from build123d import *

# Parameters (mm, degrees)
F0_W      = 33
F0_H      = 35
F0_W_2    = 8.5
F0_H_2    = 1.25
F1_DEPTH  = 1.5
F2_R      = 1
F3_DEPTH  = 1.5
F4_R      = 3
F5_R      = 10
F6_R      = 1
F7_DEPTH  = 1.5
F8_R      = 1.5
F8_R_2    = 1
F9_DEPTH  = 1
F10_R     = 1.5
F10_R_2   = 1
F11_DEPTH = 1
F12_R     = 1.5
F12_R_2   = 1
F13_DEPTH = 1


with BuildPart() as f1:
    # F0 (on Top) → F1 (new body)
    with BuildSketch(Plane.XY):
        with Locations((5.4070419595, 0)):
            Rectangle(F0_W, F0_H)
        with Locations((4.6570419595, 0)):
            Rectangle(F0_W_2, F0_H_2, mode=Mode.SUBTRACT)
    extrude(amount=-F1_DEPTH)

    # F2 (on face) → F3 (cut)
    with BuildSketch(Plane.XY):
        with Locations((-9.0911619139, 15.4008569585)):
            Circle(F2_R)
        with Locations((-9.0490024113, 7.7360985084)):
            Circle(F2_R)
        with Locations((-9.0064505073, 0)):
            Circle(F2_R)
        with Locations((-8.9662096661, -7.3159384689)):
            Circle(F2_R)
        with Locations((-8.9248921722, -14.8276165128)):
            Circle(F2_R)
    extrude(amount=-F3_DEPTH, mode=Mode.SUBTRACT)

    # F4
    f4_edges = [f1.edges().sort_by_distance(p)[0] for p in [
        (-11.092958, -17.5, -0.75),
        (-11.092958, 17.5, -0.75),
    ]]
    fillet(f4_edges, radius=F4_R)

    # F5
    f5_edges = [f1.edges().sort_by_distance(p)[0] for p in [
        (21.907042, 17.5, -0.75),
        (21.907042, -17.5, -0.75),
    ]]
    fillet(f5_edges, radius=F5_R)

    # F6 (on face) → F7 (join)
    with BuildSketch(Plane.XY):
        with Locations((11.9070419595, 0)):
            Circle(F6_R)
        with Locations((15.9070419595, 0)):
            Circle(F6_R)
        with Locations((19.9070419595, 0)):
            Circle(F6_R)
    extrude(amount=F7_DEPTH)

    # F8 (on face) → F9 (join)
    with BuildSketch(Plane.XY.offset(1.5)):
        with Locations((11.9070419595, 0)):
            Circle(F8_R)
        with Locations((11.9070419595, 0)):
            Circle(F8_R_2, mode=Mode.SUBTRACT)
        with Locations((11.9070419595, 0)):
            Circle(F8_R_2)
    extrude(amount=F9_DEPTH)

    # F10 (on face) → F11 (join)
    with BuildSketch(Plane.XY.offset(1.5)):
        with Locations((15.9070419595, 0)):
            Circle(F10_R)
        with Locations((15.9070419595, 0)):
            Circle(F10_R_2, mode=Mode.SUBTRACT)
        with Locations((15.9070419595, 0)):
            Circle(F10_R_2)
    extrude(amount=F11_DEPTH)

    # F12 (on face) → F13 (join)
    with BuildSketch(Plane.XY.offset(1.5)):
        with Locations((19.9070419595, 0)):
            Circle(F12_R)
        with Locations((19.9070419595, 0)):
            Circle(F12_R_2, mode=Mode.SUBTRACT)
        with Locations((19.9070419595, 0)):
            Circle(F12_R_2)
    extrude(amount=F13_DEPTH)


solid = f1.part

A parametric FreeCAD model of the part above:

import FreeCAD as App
import Part
import Sketcher

V = App.Vector
Q = App.Units.Quantity


def edges_at(feature, points):
    """Names of the edges that pass closest to the given points."""
    edges = feature.Shape.Edges
    near = lambda p: min(range(len(edges)), key=lambda i: edges[i].distToShape(Part.Vertex(*p))[0])
    return sorted({f"Edge{near(p) + 1}" for p in points})

doc = App.newDocument("Part")
body = doc.addObject("PartDesign::Body", "Body")

sketch1 = doc.addObject("Sketcher::SketchObject", "Sketch")
body.addObject(sketch1)
sketch1.AttachmentSupport = (doc.XY_Plane, [""])
sketch1.MapMode = "FlatFace"
sketch1.addGeometry([
    Part.LineSegment(V(-11.092958, 17.5, 0), V(-11.092958, -17.5, 0)),
    Part.LineSegment(V(-11.092958, -17.5, 0), V(21.907042, -17.5, 0)),
    Part.LineSegment(V(21.907042, -17.5, 0), V(21.907042, 17.5, 0)),
    Part.LineSegment(V(21.907042, 17.5, 0), V(-11.092958, 17.5, 0)),
    Part.LineSegment(V(8.907042, -0.625, 0), V(0.407042, -0.625, 0)),
    Part.LineSegment(V(0.407042, -0.625, 0), V(0.407042, 0.625, 0)),
    Part.LineSegment(V(0.407042, 0.625, 0), V(8.907042, 0.625, 0)),
    Part.LineSegment(V(8.907042, 0.625, 0), V(8.907042, -0.625, 0)),
], False)
sketch1.addConstraint([
    Sketcher.Constraint("Coincident", 0, 2, 1, 1),
    Sketcher.Constraint("Coincident", 1, 2, 2, 1),
    Sketcher.Constraint("Coincident", 2, 2, 3, 1),
    Sketcher.Constraint("Coincident", 3, 2, 0, 1),
    Sketcher.Constraint("Coincident", 4, 2, 5, 1),
    Sketcher.Constraint("Coincident", 5, 2, 6, 1),
    Sketcher.Constraint("Coincident", 6, 2, 7, 1),
    Sketcher.Constraint("Coincident", 7, 2, 4, 1),
    Sketcher.Constraint("Vertical", 0),
    Sketcher.Constraint("Horizontal", 1),
    Sketcher.Constraint("Vertical", 2),
    Sketcher.Constraint("Horizontal", 3),
    Sketcher.Constraint("Horizontal", 4),
    Sketcher.Constraint("Vertical", 5),
    Sketcher.Constraint("Horizontal", 6),
    Sketcher.Constraint("Vertical", 7),
    Sketcher.Constraint("DistanceX", 1, 1, 1, 2, Q("33 mm")),
    Sketcher.Constraint("DistanceY", 0, 2, 0, 1, Q("35 mm")),
    Sketcher.Constraint("DistanceX", 4, 2, 4, 1, Q("8.5 mm")),
    Sketcher.Constraint("DistanceX", 6, 2, 2, 2, Q("13 mm")),
    Sketcher.Constraint("DistanceY", 5, 1, 5, 2, Q("1.25 mm")),
    Sketcher.Constraint("DistanceY", 0, 2, -1, 1, Q("17.5 mm")),
    Sketcher.Constraint("DistanceY", 4, 2, -1, 1, Q("0.625 mm")),
    Sketcher.Constraint("DistanceX", 0, 2, -1, 1, Q("11.092958 mm")),
])
pad1 = doc.addObject("PartDesign::Pad", "Pad")
body.addObject(pad1)
pad1.Profile = sketch1
pad1.Length = 1.5
pad1.Reversed = True

sketch2 = doc.addObject("Sketcher::SketchObject", "Sketch001")
body.addObject(sketch2)
sketch2.AttachmentSupport = (doc.XY_Plane, [""])
sketch2.MapMode = "FlatFace"
sketch2.addGeometry([
    Part.Circle(V(-9.091162, 15.400857, 0), V(0, 0, 1), 1),
    Part.Circle(V(-9.049002, 7.736099, 0), V(0, 0, 1), 1),
    Part.Circle(V(-9.006451, 0, 0), V(0, 0, 1), 1),
    Part.Circle(V(-8.96621, -7.315938, 0), V(0, 0, 1), 1),
    Part.Circle(V(-8.924892, -14.827617, 0), V(0, 0, 1), 1),
], False)
sketch2.addConstraint([
    Sketcher.Constraint("Equal", 0, 1),
    Sketcher.Constraint("Equal", 1, 2),
    Sketcher.Constraint("Equal", 2, 3),
    Sketcher.Constraint("Equal", 3, 4),
    Sketcher.Constraint("PointOnObject", 2, 3, -1),
    Sketcher.Constraint("Diameter", 0, Q("2 mm")),
    Sketcher.Constraint("DistanceY", -1, 1, 1, 3, Q("7.736099 mm")),
    Sketcher.Constraint("DistanceX", 0, 3, -1, 1, Q("9.091162 mm")),
    Sketcher.Constraint("DistanceX", 2, 3, -1, 1, Q("9.006451 mm")),
    Sketcher.Constraint("DistanceX", 3, 3, -1, 1, Q("8.96621 mm")),
    Sketcher.Constraint("DistanceY", 3, 3, -1, 1, Q("7.315938 mm")),
    Sketcher.Constraint("DistanceX", 0, 3, 1, 3, Q("0.04216 mm")),
    Sketcher.Constraint("DistanceY", 1, 3, 0, 3, Q("7.664758 mm")),
    Sketcher.Constraint("DistanceY", 4, 3, 3, 3, Q("7.511678 mm")),
    Sketcher.Constraint("DistanceX", 2, 3, 4, 3, Q("0.081558 mm")),
])
pocket1 = doc.addObject("PartDesign::Pocket", "Pocket")
body.addObject(pocket1)
pocket1.Profile = sketch2
pocket1.Length = 1.5
doc.recompute()

fillet = doc.addObject("PartDesign::Fillet", "Fillet")
body.addObject(fillet)
fillet.Base = (pocket1, edges_at(pocket1, [(-11.093, -17.5, -0.75), (-11.093, 17.5, -0.75)]))
fillet.Radius = 3
doc.recompute()

fillet2 = doc.addObject("PartDesign::Fillet", "Fillet001")
body.addObject(fillet2)
fillet2.Base = (fillet, edges_at(fillet, [(21.907, 17.5, -0.75), (21.907, -17.5, -0.75)]))
fillet2.Radius = 10

sketch3 = doc.addObject("Sketcher::SketchObject", "Sketch002")
body.addObject(sketch3)
sketch3.AttachmentSupport = (doc.XY_Plane, [""])
sketch3.MapMode = "FlatFace"
sketch3.addGeometry([
    Part.Circle(V(11.907042, 0, 0), V(0, 0, 1), 1),
    Part.Circle(V(15.907042, 0, 0), V(0, 0, 1), 1),
    Part.Circle(V(19.907042, 0, 0), V(0, 0, 1), 1),
], False)
sketch3.addConstraint([
    Sketcher.Constraint("Equal", 0, 1),
    Sketcher.Constraint("Equal", 1, 2),
    Sketcher.Constraint("PointOnObject", 0, 3, -1),
    Sketcher.Constraint("PointOnObject", 1, 3, -1),
    Sketcher.Constraint("PointOnObject", 2, 3, -1),
    Sketcher.Constraint("Diameter", 0, Q("2 mm")),
    Sketcher.Constraint("DistanceX", 0, 3, 1, 3, Q("4 mm")),
    Sketcher.Constraint("DistanceX", 1, 3, 2, 3, Q("4 mm")),
    Sketcher.Constraint("DistanceX", -1, 1, 0, 3, Q("11.907042 mm")),
])
pad2 = doc.addObject("PartDesign::Pad", "Pad001")
body.addObject(pad2)
pad2.Profile = sketch3
pad2.Length = 1.5

sketch4 = doc.addObject("Sketcher::SketchObject", "Sketch003")
body.addObject(sketch4)
sketch4.AttachmentSupport = (doc.XY_Plane, [""])
sketch4.MapMode = "FlatFace"
sketch4.AttachmentOffset = App.Placement(V(0, 0, 1.5), App.Rotation())
sketch4.addGeometry(Part.Circle(V(11.907042, 0, 0), V(0, 0, 1), 1.5), False)
sketch4.addConstraint([
    Sketcher.Constraint("PointOnObject", 0, 3, -1),
    Sketcher.Constraint("Diameter", 0, Q("3 mm")),
    Sketcher.Constraint("DistanceX", -1, 1, 0, 3, Q("11.907042 mm")),
])
pad3 = doc.addObject("PartDesign::Pad", "Pad002")
body.addObject(pad3)
pad3.Profile = sketch4
pad3.Length = 1

sketch5 = doc.addObject("Sketcher::SketchObject", "Sketch004")
body.addObject(sketch5)
sketch5.AttachmentSupport = (doc.XY_Plane, [""])
sketch5.MapMode = "FlatFace"
sketch5.AttachmentOffset = App.Placement(V(0, 0, 1.5), App.Rotation())
sketch5.addGeometry(Part.Circle(V(15.907042, 0, 0), V(0, 0, 1), 1.5), False)
sketch5.addConstraint([
    Sketcher.Constraint("PointOnObject", 0, 3, -1),
    Sketcher.Constraint("Diameter", 0, Q("3 mm")),
    Sketcher.Constraint("DistanceX", -1, 1, 0, 3, Q("15.907042 mm")),
])
pad4 = doc.addObject("PartDesign::Pad", "Pad003")
body.addObject(pad4)
pad4.Profile = sketch5
pad4.Length = 1

sketch6 = doc.addObject("Sketcher::SketchObject", "Sketch005")
body.addObject(sketch6)
sketch6.AttachmentSupport = (doc.XY_Plane, [""])
sketch6.MapMode = "FlatFace"
sketch6.AttachmentOffset = App.Placement(V(0, 0, 1.5), App.Rotation())
sketch6.addGeometry(Part.Circle(V(19.907042, 0, 0), V(0, 0, 1), 1.5), False)
sketch6.addConstraint([
    Sketcher.Constraint("PointOnObject", 0, 3, -1),
    Sketcher.Constraint("Diameter", 0, Q("3 mm")),
    Sketcher.Constraint("DistanceX", -1, 1, 0, 3, Q("19.907042 mm")),
])
pad5 = doc.addObject("PartDesign::Pad", "Pad004")
body.addObject(pad5)
pad5.Profile = sketch6
pad5.Length = 1

doc.recompute()
